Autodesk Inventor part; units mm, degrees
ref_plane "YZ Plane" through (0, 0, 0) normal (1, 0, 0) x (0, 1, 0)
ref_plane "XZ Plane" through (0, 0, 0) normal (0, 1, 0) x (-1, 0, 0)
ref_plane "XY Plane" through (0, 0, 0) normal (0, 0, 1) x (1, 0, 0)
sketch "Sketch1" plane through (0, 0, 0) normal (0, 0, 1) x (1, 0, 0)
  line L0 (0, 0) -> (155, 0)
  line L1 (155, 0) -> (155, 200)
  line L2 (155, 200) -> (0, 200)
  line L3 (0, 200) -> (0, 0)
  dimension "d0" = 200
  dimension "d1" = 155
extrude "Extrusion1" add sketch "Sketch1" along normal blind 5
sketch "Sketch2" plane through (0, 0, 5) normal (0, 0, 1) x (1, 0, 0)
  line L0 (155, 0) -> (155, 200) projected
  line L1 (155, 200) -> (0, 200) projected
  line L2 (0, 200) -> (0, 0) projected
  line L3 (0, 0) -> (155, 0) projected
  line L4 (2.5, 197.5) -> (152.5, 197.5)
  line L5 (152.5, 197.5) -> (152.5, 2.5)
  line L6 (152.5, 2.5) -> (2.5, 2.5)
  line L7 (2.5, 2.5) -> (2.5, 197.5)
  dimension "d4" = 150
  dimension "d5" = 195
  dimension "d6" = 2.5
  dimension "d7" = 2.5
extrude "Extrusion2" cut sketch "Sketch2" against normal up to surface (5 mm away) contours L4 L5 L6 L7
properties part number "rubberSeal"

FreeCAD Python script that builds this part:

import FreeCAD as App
import Part
import Sketcher
Q = App.Units.Quantity

doc = App.newDocument("Part")
body = doc.addObject("PartDesign::Body", "Body")

# Sketch on XY plane
sketch1 = body.newObject("Sketcher::SketchObject", "Sketch")
sketch1.AttachmentSupport = (doc.getObject("XY_Plane"), [""])
sketch1.MapMode = "FlatFace"
sketch1.addGeometry(Part.LineSegment(App.Vector(0, 200, 0), App.Vector(0, 0, 0)), False)
sketch1.addGeometry(Part.LineSegment(App.Vector(0, 0, 0), App.Vector(155, 0, 0)), False)
sketch1.addGeometry(Part.LineSegment(App.Vector(155, 0, 0), App.Vector(155, 200, 0)), False)
sketch1.addGeometry(Part.LineSegment(App.Vector(155, 200, 0), App.Vector(0, 200, 0)), False)
sketch1.addConstraint(Sketcher.Constraint("Coincident", 0, 2, 1, 1))
sketch1.addConstraint(Sketcher.Constraint("Coincident", 1, 2, 2, 1))
sketch1.addConstraint(Sketcher.Constraint("Coincident", 2, 2, 3, 1))
sketch1.addConstraint(Sketcher.Constraint("Coincident", 3, 2, 0, 1))
sketch1.addConstraint(Sketcher.Constraint("Vertical", 0))
sketch1.addConstraint(Sketcher.Constraint("Horizontal", 1))
sketch1.addConstraint(Sketcher.Constraint("Vertical", 2))
sketch1.addConstraint(Sketcher.Constraint("Horizontal", 3))
sketch1.addConstraint(Sketcher.Constraint("Coincident", 0, 2, -1, 1))
sketch1.addConstraint(Sketcher.Constraint("DistanceX", 1, 1, 1, 2, Q("155 mm")))
sketch1.addConstraint(Sketcher.Constraint("DistanceY", 0, 2, 0, 1, Q("200 mm")))
pad1 = body.newObject("PartDesign::Pad", "Pad")
pad1.Profile = sketch1
pad1.Length = 5

# Sketch on XY plane
sketch2 = body.newObject("Sketcher::SketchObject", "Sketch001")
sketch2.AttachmentSupport = (doc.getObject("XY_Plane"), [""])
sketch2.MapMode = "FlatFace"
sketch2.AttachmentOffset = App.Placement(App.Vector(0, 0, 5), App.Rotation())
sketch2.addGeometry(Part.LineSegment(App.Vector(152.5, 197.5, 0), App.Vector(2.5, 197.5, 0)), False)
sketch2.addGeometry(Part.LineSegment(App.Vector(2.5, 197.5, 0), App.Vector(2.5, 2.5, 0)), False)
sketch2.addGeometry(Part.LineSegment(App.Vector(2.5, 2.5, 0), App.Vector(152.5, 2.5, 0)), False)
sketch2.addGeometry(Part.LineSegment(App.Vector(152.5, 2.5, 0), App.Vector(152.5, 197.5, 0)), False)
sketch2.addConstraint(Sketcher.Constraint("Coincident", 0, 2, 1, 1))
sketch2.addConstraint(Sketcher.Constraint("Coincident", 1, 2, 2, 1))
sketch2.addConstraint(Sketcher.Constraint("Coincident", 2, 2, 3, 1))
sketch2.addConstraint(Sketcher.Constraint("Coincident", 3, 2, 0, 1))
sketch2.addConstraint(Sketcher.Constraint("Horizontal", 0))
sketch2.addConstraint(Sketcher.Constraint("Vertical", 1))
sketch2.addConstraint(Sketcher.Constraint("Horizontal", 2))
sketch2.addConstraint(Sketcher.Constraint("Vertical", 3))
sketch2.addConstraint(Sketcher.Constraint("DistanceX", 0, 2, 0, 1, Q("150 mm")))
sketch2.addConstraint(Sketcher.Constraint("DistanceY", 1, 2, 1, 1, Q("195 mm")))
sketch2.addConstraint(Sketcher.Constraint("DistanceX", -1, 1, 0, 2, Q("2.5 mm")))
sketch2.addConstraint(Sketcher.Constraint("DistanceY", -1, 1, 1, 2, Q("2.5 mm")))
pocket1 = body.newObject("PartDesign::Pocket", "Pocket")
pocket1.Profile = sketch2
pocket1.Length = 5

doc.recompute()
